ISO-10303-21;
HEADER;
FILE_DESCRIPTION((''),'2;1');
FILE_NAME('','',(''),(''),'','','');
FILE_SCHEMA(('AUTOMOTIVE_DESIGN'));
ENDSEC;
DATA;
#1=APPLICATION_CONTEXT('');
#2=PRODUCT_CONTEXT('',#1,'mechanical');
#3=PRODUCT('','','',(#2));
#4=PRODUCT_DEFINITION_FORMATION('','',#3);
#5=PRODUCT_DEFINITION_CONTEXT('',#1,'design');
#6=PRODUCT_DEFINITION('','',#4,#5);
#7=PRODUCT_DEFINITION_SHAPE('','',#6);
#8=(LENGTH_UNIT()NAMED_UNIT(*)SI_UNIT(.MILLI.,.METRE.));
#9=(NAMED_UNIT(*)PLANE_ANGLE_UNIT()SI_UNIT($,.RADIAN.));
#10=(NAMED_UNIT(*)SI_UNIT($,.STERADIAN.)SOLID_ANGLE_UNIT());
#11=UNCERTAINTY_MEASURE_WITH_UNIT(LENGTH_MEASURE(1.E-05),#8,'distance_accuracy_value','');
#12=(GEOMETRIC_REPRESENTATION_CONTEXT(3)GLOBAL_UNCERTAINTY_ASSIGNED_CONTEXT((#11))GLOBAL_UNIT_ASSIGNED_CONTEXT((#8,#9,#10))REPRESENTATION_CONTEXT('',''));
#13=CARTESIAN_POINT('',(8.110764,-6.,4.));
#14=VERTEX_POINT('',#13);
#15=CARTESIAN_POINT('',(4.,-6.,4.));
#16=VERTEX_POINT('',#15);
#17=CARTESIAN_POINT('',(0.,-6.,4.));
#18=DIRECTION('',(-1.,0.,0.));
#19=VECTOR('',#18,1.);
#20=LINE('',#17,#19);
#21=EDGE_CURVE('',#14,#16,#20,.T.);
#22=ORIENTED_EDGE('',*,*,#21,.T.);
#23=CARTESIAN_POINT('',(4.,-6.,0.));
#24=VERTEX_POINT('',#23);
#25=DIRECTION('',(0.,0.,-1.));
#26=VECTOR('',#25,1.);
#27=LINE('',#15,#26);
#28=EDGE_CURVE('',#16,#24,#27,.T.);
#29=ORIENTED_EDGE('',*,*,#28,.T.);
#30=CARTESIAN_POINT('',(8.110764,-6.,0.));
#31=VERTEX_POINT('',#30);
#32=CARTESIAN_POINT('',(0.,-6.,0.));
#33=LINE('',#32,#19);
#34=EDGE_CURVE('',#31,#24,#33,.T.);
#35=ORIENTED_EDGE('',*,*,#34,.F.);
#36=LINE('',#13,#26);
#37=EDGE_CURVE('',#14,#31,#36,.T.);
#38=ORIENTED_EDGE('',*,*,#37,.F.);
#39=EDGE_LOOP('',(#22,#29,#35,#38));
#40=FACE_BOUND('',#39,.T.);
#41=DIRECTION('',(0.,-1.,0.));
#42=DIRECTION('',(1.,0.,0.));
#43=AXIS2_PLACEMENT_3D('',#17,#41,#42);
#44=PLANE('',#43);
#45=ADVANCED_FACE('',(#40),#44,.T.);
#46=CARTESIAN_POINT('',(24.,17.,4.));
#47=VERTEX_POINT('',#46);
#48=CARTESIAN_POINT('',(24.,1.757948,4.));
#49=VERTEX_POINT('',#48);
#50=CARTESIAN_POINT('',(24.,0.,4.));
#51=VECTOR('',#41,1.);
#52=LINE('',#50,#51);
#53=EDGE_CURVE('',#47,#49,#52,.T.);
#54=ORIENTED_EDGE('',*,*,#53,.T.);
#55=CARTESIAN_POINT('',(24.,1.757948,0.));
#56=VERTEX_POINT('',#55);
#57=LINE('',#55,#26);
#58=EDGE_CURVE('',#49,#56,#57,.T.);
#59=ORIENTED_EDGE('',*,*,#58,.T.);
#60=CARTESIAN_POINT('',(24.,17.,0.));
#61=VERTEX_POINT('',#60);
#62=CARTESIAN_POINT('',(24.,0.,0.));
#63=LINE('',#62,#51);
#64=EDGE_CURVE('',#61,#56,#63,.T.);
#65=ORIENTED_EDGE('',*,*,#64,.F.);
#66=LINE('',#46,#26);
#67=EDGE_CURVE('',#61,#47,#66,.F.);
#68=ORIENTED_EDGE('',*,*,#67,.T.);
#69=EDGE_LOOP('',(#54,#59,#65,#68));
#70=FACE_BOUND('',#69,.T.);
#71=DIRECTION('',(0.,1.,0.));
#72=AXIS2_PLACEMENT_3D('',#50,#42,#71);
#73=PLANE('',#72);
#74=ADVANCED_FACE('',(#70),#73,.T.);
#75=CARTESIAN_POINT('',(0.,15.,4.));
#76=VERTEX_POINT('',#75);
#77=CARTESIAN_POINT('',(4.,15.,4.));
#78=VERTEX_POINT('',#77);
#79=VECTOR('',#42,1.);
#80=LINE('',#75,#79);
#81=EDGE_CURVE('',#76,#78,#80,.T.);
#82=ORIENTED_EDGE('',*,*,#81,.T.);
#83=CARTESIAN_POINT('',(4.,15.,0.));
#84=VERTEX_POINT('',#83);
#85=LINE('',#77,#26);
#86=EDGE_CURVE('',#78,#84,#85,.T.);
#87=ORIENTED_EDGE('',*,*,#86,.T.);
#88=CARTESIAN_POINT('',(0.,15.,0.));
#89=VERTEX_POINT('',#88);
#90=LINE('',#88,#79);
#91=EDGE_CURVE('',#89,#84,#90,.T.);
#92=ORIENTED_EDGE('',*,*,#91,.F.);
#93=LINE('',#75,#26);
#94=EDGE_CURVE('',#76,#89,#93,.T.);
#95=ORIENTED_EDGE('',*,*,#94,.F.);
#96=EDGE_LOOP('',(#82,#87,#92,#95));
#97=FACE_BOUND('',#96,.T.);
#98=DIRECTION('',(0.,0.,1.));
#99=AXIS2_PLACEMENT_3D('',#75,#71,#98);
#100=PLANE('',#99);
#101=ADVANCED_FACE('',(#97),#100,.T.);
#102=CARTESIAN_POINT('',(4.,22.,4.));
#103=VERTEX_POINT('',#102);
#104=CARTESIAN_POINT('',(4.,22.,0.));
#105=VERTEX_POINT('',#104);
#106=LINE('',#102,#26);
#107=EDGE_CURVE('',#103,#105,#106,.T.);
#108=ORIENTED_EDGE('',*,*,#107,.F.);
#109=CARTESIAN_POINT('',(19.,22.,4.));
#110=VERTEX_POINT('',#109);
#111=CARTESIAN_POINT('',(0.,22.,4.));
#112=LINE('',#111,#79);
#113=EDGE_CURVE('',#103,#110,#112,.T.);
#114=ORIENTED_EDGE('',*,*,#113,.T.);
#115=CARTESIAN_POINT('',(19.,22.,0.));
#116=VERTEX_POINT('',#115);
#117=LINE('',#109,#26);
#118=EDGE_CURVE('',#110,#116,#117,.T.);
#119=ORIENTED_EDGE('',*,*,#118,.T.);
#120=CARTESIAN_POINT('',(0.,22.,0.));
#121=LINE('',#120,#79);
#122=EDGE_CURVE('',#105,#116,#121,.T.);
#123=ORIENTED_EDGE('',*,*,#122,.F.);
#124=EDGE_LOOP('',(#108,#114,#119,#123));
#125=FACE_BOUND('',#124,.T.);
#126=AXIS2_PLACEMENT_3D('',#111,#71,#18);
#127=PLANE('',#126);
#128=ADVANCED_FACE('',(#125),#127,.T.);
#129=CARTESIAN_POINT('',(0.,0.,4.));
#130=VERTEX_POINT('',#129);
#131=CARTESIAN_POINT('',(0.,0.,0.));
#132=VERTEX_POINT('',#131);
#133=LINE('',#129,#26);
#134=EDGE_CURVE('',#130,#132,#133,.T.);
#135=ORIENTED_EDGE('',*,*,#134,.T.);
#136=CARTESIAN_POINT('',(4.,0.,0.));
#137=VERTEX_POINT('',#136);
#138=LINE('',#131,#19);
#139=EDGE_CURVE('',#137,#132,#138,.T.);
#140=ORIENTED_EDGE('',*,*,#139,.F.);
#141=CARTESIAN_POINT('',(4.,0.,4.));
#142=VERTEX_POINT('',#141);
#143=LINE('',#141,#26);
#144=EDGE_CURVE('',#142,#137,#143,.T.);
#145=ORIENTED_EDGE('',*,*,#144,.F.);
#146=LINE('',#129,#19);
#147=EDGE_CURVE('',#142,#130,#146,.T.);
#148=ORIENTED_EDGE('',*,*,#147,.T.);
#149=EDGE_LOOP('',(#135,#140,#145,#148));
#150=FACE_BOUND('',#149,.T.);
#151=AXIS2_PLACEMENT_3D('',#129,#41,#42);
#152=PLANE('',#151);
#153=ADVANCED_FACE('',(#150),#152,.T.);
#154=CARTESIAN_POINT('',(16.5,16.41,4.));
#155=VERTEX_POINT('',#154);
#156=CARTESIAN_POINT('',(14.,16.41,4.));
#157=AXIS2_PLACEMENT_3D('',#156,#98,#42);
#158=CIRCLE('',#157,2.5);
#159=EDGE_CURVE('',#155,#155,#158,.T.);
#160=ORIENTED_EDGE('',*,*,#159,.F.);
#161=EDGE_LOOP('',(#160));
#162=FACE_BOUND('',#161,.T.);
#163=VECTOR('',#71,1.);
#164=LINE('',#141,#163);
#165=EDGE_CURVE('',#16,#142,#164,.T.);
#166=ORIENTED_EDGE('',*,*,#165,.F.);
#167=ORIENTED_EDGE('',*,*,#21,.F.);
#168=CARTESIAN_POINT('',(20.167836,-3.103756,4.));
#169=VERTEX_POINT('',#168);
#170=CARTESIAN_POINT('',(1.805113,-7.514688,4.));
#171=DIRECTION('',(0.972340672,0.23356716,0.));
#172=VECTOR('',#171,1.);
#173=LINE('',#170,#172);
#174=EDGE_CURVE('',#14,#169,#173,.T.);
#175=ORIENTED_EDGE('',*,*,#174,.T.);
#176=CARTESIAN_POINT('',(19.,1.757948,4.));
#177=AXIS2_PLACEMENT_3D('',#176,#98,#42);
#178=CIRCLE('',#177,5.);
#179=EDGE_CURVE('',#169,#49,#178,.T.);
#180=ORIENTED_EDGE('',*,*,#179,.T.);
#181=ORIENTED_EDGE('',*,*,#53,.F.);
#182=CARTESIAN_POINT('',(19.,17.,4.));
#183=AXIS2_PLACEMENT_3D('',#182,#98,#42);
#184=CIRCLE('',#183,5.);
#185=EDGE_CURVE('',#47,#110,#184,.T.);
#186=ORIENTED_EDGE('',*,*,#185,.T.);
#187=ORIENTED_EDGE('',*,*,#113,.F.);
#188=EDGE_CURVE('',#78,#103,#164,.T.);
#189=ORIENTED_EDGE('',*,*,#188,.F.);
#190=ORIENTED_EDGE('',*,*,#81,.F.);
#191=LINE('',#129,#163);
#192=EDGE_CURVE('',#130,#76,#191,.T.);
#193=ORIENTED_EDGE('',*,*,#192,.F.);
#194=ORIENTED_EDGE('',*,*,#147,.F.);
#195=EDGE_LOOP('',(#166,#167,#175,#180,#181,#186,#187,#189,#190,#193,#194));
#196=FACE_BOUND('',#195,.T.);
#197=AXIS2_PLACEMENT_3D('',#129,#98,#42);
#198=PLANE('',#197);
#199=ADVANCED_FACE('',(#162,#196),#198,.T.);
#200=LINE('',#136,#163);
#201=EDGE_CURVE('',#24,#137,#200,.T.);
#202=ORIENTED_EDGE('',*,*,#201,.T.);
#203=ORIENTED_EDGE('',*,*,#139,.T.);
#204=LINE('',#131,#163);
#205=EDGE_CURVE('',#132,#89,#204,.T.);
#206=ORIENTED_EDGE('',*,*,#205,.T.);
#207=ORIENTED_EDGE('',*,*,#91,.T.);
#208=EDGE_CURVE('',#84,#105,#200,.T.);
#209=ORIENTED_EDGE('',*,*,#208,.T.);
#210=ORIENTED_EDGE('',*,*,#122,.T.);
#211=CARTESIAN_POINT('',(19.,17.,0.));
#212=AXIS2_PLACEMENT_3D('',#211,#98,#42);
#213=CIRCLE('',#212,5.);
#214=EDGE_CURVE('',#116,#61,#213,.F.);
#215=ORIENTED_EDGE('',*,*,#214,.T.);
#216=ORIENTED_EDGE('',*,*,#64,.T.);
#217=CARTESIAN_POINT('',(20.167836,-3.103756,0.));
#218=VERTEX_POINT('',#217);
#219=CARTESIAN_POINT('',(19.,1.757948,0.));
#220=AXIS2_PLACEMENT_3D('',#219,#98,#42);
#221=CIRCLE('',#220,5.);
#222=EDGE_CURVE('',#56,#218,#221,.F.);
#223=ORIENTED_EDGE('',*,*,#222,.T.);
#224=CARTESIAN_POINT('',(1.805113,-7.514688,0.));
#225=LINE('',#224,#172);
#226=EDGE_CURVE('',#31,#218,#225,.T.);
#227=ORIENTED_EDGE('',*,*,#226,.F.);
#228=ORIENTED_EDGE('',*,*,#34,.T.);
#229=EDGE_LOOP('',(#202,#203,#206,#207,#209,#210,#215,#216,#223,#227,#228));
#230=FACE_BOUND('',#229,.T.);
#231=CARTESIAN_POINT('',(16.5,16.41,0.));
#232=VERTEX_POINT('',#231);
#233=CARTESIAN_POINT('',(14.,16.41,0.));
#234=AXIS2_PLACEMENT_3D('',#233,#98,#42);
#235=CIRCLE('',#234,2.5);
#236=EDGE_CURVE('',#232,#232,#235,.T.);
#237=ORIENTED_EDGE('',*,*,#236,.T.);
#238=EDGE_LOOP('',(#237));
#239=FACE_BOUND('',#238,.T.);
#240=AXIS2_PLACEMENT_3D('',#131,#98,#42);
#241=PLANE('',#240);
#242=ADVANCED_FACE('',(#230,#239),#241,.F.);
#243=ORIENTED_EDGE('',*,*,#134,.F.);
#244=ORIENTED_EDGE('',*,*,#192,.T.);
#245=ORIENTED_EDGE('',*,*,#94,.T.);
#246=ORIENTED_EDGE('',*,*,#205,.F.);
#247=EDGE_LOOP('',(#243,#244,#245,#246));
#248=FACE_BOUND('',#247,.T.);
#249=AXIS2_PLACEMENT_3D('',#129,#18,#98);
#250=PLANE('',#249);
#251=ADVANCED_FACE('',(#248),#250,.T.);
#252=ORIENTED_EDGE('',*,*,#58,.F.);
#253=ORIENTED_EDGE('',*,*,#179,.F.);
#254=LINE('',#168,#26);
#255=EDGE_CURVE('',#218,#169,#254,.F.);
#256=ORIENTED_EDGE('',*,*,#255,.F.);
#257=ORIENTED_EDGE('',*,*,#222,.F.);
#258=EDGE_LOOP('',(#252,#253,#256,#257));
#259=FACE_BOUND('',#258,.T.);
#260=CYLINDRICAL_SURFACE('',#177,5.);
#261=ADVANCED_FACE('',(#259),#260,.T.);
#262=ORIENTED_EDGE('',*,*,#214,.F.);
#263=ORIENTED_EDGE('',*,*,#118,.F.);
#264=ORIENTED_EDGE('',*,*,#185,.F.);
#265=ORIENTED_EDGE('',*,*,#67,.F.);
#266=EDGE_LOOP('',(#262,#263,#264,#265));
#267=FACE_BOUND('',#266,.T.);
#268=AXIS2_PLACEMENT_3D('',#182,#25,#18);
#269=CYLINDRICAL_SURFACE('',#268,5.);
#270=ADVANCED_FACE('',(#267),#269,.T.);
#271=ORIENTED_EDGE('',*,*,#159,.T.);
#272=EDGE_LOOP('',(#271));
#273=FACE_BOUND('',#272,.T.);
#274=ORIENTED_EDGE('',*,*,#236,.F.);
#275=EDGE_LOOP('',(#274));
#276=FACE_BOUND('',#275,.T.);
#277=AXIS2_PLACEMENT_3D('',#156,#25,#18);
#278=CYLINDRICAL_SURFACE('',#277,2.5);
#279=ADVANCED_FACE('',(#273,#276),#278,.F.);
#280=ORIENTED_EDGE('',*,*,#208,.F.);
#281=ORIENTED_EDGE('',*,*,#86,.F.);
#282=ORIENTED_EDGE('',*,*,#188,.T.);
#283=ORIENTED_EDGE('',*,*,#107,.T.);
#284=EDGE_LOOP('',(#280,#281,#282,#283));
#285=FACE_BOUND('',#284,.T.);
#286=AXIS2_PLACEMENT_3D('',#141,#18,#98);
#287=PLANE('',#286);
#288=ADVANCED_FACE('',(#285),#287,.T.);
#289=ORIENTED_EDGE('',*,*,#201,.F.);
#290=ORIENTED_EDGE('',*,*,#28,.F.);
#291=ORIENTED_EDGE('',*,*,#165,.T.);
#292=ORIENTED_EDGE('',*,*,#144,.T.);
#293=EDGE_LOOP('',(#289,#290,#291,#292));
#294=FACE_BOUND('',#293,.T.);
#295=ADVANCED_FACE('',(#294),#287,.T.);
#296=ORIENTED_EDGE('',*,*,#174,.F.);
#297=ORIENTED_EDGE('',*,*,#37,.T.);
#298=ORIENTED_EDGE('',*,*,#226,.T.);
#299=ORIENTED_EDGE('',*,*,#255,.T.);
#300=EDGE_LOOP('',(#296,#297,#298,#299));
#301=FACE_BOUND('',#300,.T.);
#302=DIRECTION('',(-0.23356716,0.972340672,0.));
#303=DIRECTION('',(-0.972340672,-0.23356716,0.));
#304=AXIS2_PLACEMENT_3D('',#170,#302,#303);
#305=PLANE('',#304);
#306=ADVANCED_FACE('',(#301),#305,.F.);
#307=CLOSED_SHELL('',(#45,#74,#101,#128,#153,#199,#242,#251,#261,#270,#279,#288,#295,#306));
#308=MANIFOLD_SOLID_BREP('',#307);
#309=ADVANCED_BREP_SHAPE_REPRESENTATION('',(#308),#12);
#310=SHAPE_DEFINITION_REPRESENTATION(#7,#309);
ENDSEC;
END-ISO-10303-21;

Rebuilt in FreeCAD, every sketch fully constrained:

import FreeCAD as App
import Part
import Sketcher

V = App.Vector


def edges_at(feature, points):
    """Names of the edges that pass closest to the given points."""
    edges = feature.Shape.Edges
    near = lambda p: min(range(len(edges)), key=lambda i: edges[i].distToShape(Part.Vertex(*p))[0])
    return sorted({f"Edge{near(p) + 1}" for p in points})

doc = App.newDocument("Part")
body = doc.addObject("PartDesign::Body", "Body")

# Sketch on XY plane
sketch1 = doc.addObject("Sketcher::SketchObject", "Sketch")
body.addObject(sketch1)
sketch1.AttachmentSupport = (doc.XY_Plane, [""])
sketch1.MapMode = "FlatFace"
sketch1.addGeometry([
    Part.LineSegment(V(0, 15, 0), V(0, 0, 0)),  # 0
    Part.LineSegment(V(0, 0, 0), V(4, 0, 0)),  # 1
    Part.LineSegment(V(4, 0, 0), V(4, -6, 0)),  # 2
    Part.LineSegment(V(4, -6, 0), V(8.1, -6, 0)),  # 3
    Part.LineSegment(V(8.1, -6, 0), V(24, -2.2, 0)),  # 4
    Part.LineSegment(V(24, -2.2, 0), V(24, 22, 0)),  # 5
    Part.LineSegment(V(24, 22, 0), V(4, 22, 0)),  # 6
    Part.LineSegment(V(4, 22, 0), V(4, 15, 0)),  # 7
    Part.LineSegment(V(4, 15, 0), V(0, 15, 0)),  # 8
    Part.Circle(V(14, 16.4, 0), V(0, 0, 1), 2.5),  # 9
], False)
sketch1.addConstraint([
    Sketcher.Constraint("Coincident", 0, 2, 1, 1),
    Sketcher.Constraint("Coincident", 1, 2, 2, 1),
    Sketcher.Constraint("Coincident", 2, 2, 3, 1),
    Sketcher.Constraint("Coincident", 3, 2, 4, 1),
    Sketcher.Constraint("Coincident", 4, 2, 5, 1),
    Sketcher.Constraint("Coincident", 5, 2, 6, 1),
    Sketcher.Constraint("Coincident", 6, 2, 7, 1),
    Sketcher.Constraint("Coincident", 7, 2, 8, 1),
    Sketcher.Constraint("Coincident", 8, 2, 0, 1),
    Sketcher.Constraint("Vertical", 0),
    Sketcher.Constraint("Horizontal", 1),
    Sketcher.Constraint("Vertical", 2),
    Sketcher.Constraint("Horizontal", 3),
    Sketcher.Constraint("Vertical", 5),
    Sketcher.Constraint("Horizontal", 6),
    Sketcher.Constraint("Vertical", 7),
    Sketcher.Constraint("Horizontal", 8),
    Sketcher.Constraint("Coincident", 0, 2, -1, 1),
    Sketcher.Constraint("Vertical", 2, 2, 6, 2),
    Sketcher.Constraint("Diameter", 9, 5.0),
    Sketcher.Constraint("DistanceX", 1, 1, 1, 2, 4.0),
    Sketcher.Constraint("DistanceX", 6, 2, 6, 1, 20.0),
    Sketcher.Constraint("DistanceY", 0, 2, 0, 1, 15.0),
    Sketcher.Constraint("DistanceY", 2, 2, 2, 1, 6.0),
    Sketcher.Constraint("DistanceY", 7, 2, 7, 1, 7.0),
    Sketcher.Constraint("DistanceX", -1, 1, 9, 3, 14.0),
    Sketcher.Constraint("DistanceY", -1, 1, 9, 3, 16.41),
    Sketcher.Constraint("DistanceX", 3, 1, 3, 2, 4.110764),
    Sketcher.Constraint("DistanceY", 5, 1, 5, 2, 24.183227),
])
pad1 = doc.addObject("PartDesign::Pad", "Pad")
body.addObject(pad1)
pad1.Profile = sketch1
pad1.Length = 4
doc.recompute()

fillet = doc.addObject("PartDesign::Fillet", "Fillet")
body.addObject(fillet)
fillet.Base = (pad1, edges_at(pad1, [(24, 22, 2), (24, -2.183, 2)]))
fillet.Radius = 5

doc.recompute()
